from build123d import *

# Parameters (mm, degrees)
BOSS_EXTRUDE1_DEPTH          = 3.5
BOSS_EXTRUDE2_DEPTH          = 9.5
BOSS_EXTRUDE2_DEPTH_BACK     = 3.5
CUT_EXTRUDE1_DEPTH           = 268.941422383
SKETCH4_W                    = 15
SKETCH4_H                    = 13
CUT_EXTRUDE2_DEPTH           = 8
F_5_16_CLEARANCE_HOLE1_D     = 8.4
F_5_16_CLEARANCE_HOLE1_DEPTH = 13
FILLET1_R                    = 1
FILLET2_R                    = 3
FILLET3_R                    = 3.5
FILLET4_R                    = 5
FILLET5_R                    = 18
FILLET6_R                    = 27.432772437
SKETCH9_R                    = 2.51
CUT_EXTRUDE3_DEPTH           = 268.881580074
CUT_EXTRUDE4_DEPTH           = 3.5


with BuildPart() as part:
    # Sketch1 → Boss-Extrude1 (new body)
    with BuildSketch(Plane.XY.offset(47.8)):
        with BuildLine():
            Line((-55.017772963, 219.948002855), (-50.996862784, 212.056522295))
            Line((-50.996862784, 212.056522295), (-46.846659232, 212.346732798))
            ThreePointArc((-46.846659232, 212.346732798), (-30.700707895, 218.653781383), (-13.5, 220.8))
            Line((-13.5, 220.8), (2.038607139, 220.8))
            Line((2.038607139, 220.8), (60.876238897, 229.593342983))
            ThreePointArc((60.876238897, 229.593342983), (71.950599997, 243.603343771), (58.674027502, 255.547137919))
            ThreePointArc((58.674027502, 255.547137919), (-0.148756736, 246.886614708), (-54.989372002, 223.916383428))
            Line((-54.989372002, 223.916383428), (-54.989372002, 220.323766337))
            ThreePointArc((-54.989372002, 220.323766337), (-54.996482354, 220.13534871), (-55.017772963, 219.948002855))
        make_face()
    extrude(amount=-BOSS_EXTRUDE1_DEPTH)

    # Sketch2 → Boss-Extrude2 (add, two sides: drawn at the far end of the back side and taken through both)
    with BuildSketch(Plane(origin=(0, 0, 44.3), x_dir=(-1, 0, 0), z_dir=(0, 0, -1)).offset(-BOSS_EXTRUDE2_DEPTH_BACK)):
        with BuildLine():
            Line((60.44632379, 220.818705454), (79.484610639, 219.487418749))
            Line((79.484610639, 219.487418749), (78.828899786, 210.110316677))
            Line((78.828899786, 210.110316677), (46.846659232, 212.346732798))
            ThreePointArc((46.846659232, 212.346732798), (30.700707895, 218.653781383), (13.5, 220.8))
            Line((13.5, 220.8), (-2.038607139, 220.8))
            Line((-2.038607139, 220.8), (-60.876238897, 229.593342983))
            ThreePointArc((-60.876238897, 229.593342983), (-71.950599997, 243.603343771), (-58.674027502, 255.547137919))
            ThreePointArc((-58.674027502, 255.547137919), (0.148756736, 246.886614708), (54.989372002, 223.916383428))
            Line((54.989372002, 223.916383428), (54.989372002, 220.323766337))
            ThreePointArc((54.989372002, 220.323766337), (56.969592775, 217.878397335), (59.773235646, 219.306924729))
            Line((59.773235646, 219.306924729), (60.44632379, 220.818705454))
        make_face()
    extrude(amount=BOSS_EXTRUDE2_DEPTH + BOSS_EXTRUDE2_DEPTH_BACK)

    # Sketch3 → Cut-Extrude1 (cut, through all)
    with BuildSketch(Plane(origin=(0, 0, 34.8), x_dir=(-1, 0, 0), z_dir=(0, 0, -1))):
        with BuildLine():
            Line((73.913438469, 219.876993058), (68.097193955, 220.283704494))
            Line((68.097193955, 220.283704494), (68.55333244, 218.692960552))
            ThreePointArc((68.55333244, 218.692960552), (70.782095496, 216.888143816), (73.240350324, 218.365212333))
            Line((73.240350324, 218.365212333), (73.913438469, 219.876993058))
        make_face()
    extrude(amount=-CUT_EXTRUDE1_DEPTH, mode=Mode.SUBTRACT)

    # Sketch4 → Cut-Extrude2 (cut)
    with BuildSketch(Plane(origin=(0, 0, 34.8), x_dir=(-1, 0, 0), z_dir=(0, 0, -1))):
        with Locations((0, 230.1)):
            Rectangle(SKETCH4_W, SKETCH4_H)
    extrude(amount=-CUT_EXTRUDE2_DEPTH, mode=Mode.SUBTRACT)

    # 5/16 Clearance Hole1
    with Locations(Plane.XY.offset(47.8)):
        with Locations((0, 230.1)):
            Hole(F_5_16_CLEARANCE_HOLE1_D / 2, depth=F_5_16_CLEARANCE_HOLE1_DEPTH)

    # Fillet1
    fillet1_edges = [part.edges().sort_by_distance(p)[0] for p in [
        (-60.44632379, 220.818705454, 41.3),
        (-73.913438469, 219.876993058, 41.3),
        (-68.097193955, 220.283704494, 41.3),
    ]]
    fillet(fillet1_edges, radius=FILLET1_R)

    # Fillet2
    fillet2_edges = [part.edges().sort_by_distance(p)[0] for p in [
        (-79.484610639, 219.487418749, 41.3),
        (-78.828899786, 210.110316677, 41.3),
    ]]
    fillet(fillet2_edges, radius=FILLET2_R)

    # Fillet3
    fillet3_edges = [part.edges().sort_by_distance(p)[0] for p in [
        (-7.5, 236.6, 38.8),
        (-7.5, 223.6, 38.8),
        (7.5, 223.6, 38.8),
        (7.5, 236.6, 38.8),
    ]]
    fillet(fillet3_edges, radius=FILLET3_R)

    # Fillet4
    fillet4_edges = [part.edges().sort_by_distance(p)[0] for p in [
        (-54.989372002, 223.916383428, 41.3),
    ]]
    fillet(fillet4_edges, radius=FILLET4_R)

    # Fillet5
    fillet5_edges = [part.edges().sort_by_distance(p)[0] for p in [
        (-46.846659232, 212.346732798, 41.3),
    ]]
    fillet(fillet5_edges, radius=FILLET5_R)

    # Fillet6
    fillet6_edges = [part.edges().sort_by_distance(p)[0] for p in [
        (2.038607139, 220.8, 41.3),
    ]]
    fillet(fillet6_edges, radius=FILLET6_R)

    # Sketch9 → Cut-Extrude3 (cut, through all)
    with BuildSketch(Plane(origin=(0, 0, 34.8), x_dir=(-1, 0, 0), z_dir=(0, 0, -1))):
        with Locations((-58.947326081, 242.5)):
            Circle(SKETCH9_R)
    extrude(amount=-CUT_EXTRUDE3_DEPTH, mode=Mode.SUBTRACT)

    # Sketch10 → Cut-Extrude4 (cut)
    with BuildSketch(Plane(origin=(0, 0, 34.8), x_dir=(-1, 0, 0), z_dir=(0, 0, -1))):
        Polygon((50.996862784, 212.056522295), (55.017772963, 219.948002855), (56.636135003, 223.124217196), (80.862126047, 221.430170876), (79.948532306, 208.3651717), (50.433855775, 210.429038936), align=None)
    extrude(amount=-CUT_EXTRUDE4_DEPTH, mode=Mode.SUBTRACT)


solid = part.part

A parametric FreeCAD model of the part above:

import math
import FreeCAD as App
import Part
import Sketcher
from FreeCAD import Vector
Q = App.Units.Quantity


def edges_at(feature, points):
    """Names of the edges that pass closest to the given points."""
    edges = feature.Shape.Edges
    near = lambda p: min(range(len(edges)), key=lambda i: edges[i].distToShape(Part.Vertex(*p))[0])
    return sorted({f"Edge{near(p) + 1}" for p in points})


def add_polygon(sketch, points):
    """Adds a closed chain of lines whose ends are joined by coincident constraints."""
    first, n = sketch.GeometryCount, len(points)
    for a, b in zip(points, points[1:] + points[:1]):
        sketch.addGeometry(Part.LineSegment(App.Vector(*a, 0), App.Vector(*b, 0)), False)
    for i in range(n):
        sketch.addConstraint(Sketcher.Constraint("Coincident", first + i, 2, first + (i + 1) % n, 1))

doc = App.newDocument("Part")
body = doc.addObject("PartDesign::Body", "Body")

# Sketch on XY plane
sketch1 = doc.addObject("Sketcher::SketchObject", "Sketch")
body.addObject(sketch1)
sketch1.AttachmentSupport = (doc.XY_Plane, [""])
sketch1.MapMode = "FlatFace"
sketch1.AttachmentOffset = App.Placement(Vector(0, 0, 47.8), App.Rotation())
sketch1.addGeometry(Part.LineSegment(Vector(-55.017773, 219.948003, 0), Vector(-50.996863, 212.056522, 0)), False)
sketch1.addGeometry(Part.LineSegment(Vector(-50.996863, 212.056522, 0), Vector(-46.846659, 212.346733, 0)), False)
sketch1.addGeometry(Part.ArcOfCircle(Part.Circle(Vector(-13.5, 150.8, 0), Vector(0, 0, 1), 70), math.radians(90), math.radians(118.449295)), False)
sketch1.addGeometry(Part.LineSegment(Vector(-13.5, 220.8, 0), Vector(2.038607, 220.8, 0)), False)
sketch1.addGeometry(Part.LineSegment(Vector(2.038607, 220.8, 0), Vector(60.876239, 229.593343, 0)), False)
sketch1.addGeometry(Part.ArcOfCircle(Part.Circle(Vector(58.947326, 242.5, 0), Vector(0, 0, 1), 13.05), math.radians(-81.5), math.radians(91.2)), False)
sketch1.addGeometry(Part.ArcOfCircle(Part.Circle(Vector(63.658323, 17.599335, 0), Vector(0, 0, 1), 238), math.radians(91.2), math.radians(119.902114)), False)
sketch1.addGeometry(Part.LineSegment(Vector(-54.989372, 223.916383, 0), Vector(-54.989372, 220.323766, 0)), False)
sketch1.addGeometry(Part.ArcOfCircle(Part.Circle(Vector(-57.489372, 220.323766, 0), Vector(0, 0, 1), 2.5), math.radians(-8.644624), math.radians(0)), False)
sketch1.addConstraint(Sketcher.Constraint("Coincident", 0, 2, 1, 1))
sketch1.addConstraint(Sketcher.Constraint("Coincident", 1, 2, 2, 2))
sketch1.addConstraint(Sketcher.Constraint("Tangent", 2, 1, 3, 1))
sketch1.addConstraint(Sketcher.Constraint("Coincident", 3, 2, 4, 1))
sketch1.addConstraint(Sketcher.Constraint("Tangent", 4, 2, 5, 1))
sketch1.addConstraint(Sketcher.Constraint("Tangent", 5, 2, 6, 1))
sketch1.addConstraint(Sketcher.Constraint("Coincident", 6, 2, 7, 1))
sketch1.addConstraint(Sketcher.Constraint("Tangent", 7, 2, 8, 2))
sketch1.addConstraint(Sketcher.Constraint("Coincident", 8, 1, 0, 1))
sketch1.addConstraint(Sketcher.Constraint("Horizontal", 3))
sketch1.addConstraint(Sketcher.Constraint("Vertical", 7))
sketch1.addConstraint(Sketcher.Constraint("Radius", 2, 70.0))
sketch1.addConstraint(Sketcher.Constraint("Radius", 6, 238.0))
sketch1.addConstraint(Sketcher.Constraint("Radius", 8, 2.5))
sketch1.addConstraint(Sketcher.Constraint("Angle", 0, Q("-63 deg")))
sketch1.addConstraint(Sketcher.Constraint("Angle", 1, Q("4 deg")))
sketch1.addConstraint(Sketcher.Constraint("Radius", 5, 13.05))
sketch1.addConstraint(Sketcher.Constraint("Angle", 4, Q("8.5 deg")))
sketch1.addConstraint(Sketcher.Constraint("DistanceX", 2, 3, -1, 1, 13.5))
sketch1.addConstraint(Sketcher.Constraint("DistanceY", -1, 1, 2, 3, 150.8))
sketch1.addConstraint(Sketcher.Constraint("DistanceY", -1, 1, 5, 3, 242.5))
sketch1.addConstraint(Sketcher.Constraint("DistanceX", 8, 3, 5, 3, 116.436698))
sketch1.addConstraint(Sketcher.Constraint("DistanceX", 1, 2, 4, 2, 107.722898))
sketch1.addConstraint(Sketcher.Constraint("DistanceX", 5, 2, 5, 3, 0.273299))
sketch1.addConstraint(Sketcher.Constraint("DistanceX", 8, 1, 7, 2, 0.028401))
sketch1.addConstraint(Sketcher.Constraint("DistanceX", 3, 1, 3, 2, 15.538607))
sketch1.addConstraint(Sketcher.Constraint("DistanceY", 7, 2, 7, 1, 3.592617))
pad1 = doc.addObject("PartDesign::Pad", "Pad")
body.addObject(pad1)
pad1.Profile = sketch1
pad1.Length = 3.5
pad1.Reversed = True

# Sketch on XY plane
sketch2 = doc.addObject("Sketcher::SketchObject", "Sketch001")
body.addObject(sketch2)
sketch2.AttachmentSupport = (doc.XY_Plane, [""])
sketch2.MapMode = "FlatFace"
sketch2.AttachmentOffset = App.Placement(Vector(0, 0, 44.3), App.Rotation())
sketch2.addGeometry(Part.LineSegment(Vector(-79.484611, 219.487419, 0), Vector(-60.446324, 220.818705, 0)), False)
sketch2.addGeometry(Part.LineSegment(Vector(-60.446324, 220.818705, 0), Vector(-59.773236, 219.306925, 0)), False)
sketch2.addGeometry(Part.ArcOfCircle(Part.Circle(Vector(-57.489372, 220.323766, 0), Vector(0, 0, 1), 2.5), math.radians(-156), math.radians(0)), False)
sketch2.addGeometry(Part.LineSegment(Vector(-54.989372, 220.323766, 0), Vector(-54.989372, 223.916383, 0)), False)
sketch2.addGeometry(Part.ArcOfCircle(Part.Circle(Vector(63.658323, 17.599335, 0), Vector(0, 0, 1), 238), math.radians(91.2), math.radians(119.902114)), False)
sketch2.addGeometry(Part.ArcOfCircle(Part.Circle(Vector(58.947326, 242.5, 0), Vector(0, 0, 1), 13.05), math.radians(-81.5), math.radians(91.2)), False)
sketch2.addGeometry(Part.LineSegment(Vector(60.876239, 229.593343, 0), Vector(2.038607, 220.8, 0)), False)
sketch2.addGeometry(Part.LineSegment(Vector(2.038607, 220.8, 0), Vector(-13.5, 220.8, 0)), False)
sketch2.addGeometry(Part.ArcOfCircle(Part.Circle(Vector(-13.5, 150.8, 0), Vector(0, 0, 1), 70), math.radians(90), math.radians(118.449295)), False)
sketch2.addGeometry(Part.LineSegment(Vector(-46.846659, 212.346733, 0), Vector(-78.8289, 210.110317, 0)), False)
sketch2.addGeometry(Part.LineSegment(Vector(-78.8289, 210.110317, 0), Vector(-79.484611, 219.487419, 0)), False)
sketch2.addConstraint(Sketcher.Constraint("Coincident", 0, 2, 1, 1))
sketch2.addConstraint(Sketcher.Constraint("Tangent", 1, 2, 2, 1))
sketch2.addConstraint(Sketcher.Constraint("Tangent", 2, 2, 3, 1))
sketch2.addConstraint(Sketcher.Constraint("Coincident", 3, 2, 4, 2))
sketch2.addConstraint(Sketcher.Constraint("Tangent", 4, 1, 5, 2))
sketch2.addConstraint(Sketcher.Constraint("Tangent", 5, 1, 6, 1))
sketch2.addConstraint(Sketcher.Constraint("Coincident", 6, 2, 7, 1))
sketch2.addConstraint(Sketcher.Constraint("Tangent", 7, 2, 8, 1))
sketch2.addConstraint(Sketcher.Constraint("Coincident", 8, 2, 9, 1))
sketch2.addConstraint(Sketcher.Constraint("Coincident", 9, 2, 10, 1))
sketch2.addConstraint(Sketcher.Constraint("Coincident", 10, 2, 0, 1))
sketch2.addConstraint(Sketcher.Constraint("Vertical", 3))
sketch2.addConstraint(Sketcher.Constraint("Horizontal", 7))
sketch2.addConstraint(Sketcher.Constraint("Parallel", 0, 9))
sketch2.addConstraint(Sketcher.Constraint("Perpendicular", 9, 10))
sketch2.addConstraint(Sketcher.Constraint("Radius", 4, 238.0))
sketch2.addConstraint(Sketcher.Constraint("Radius", 8, 70.0))
sketch2.addConstraint(Sketcher.Constraint("Radius", 2, 2.5))
sketch2.addConstraint(Sketcher.Constraint("Angle", 0, Q("4 deg")))
sketch2.addConstraint(Sketcher.Constraint("Angle", 1, Q("-66 deg")))
sketch2.addConstraint(Sketcher.Constraint("Radius", 5, 13.05))
sketch2.addConstraint(Sketcher.Constraint("Angle", 6, Q("-171.5 deg")))
sketch2.addConstraint(Sketcher.Constraint("Distance", 10, 9.4))
sketch2.addConstraint(Sketcher.Constraint("DistanceY", -1, 1, 5, 3, 242.5))
sketch2.addConstraint(Sketcher.Constraint("DistanceX", 8, 3, -1, 1, 13.5))
sketch2.addConstraint(Sketcher.Constraint("DistanceY", -1, 1, 8, 3, 150.8))
sketch2.addConstraint(Sketcher.Constraint("DistanceX", 9, 2, -1, 1, 78.8289))
sketch2.addConstraint(Sketcher.Constraint("DistanceX", 2, 3, 5, 3, 116.436698))
sketch2.addConstraint(Sketcher.Constraint("Distance", 1, 1.65485))
sketch2.addConstraint(Sketcher.Constraint("DistanceX", 7, 2, 7, 1, 15.538607))
sketch2.addConstraint(Sketcher.Constraint("DistanceY", 3, 1, 3, 2, 3.592617))
sketch2.addConstraint(Sketcher.Constraint("DistanceX", 8, 2, -1, 1, 46.846659))
pad2 = doc.addObject("PartDesign::Pad", "Pad001")
body.addObject(pad2)
pad2.Profile = sketch2
pad2.Type = "TwoLengths"
pad2.Length = 9.5
pad2.Length2 = 3.5
pad2.Reversed = True

# Sketch on XY plane
sketch3 = doc.addObject("Sketcher::SketchObject", "Sketch002")
body.addObject(sketch3)
sketch3.AttachmentSupport = (doc.XY_Plane, [""])
sketch3.MapMode = "FlatFace"
sketch3.AttachmentOffset = App.Placement(Vector(0, 0, 34.8), App.Rotation())
sketch3.addGeometry(Part.LineSegment(Vector(-73.913438, 219.876993, 0), Vector(-68.097194, 220.283704, 0)), False)
sketch3.addGeometry(Part.LineSegment(Vector(-68.097194, 220.283704, 0), Vector(-68.553332, 218.692961, 0)), False)
sketch3.addGeometry(Part.ArcOfCircle(Part.Circle(Vector(-70.956487, 219.382054, 0), Vector(0, 0, 1), 2.5), math.radians(-156), math.radians(-16)), False)
sketch3.addGeometry(Part.LineSegment(Vector(-73.24035, 218.365212, 0), Vector(-73.913438, 219.876993, 0)), False)
sketch3.addConstraint(Sketcher.Constraint("Coincident", 0, 2, 1, 1))
sketch3.addConstraint(Sketcher.Constraint("Tangent", 1, 2, 2, 2))
sketch3.addConstraint(Sketcher.Constraint("Tangent", 2, 1, 3, 1))
sketch3.addConstraint(Sketcher.Constraint("Coincident", 3, 2, 0, 1))
sketch3.addConstraint(Sketcher.Constraint("Equal", 1, 3))
sketch3.addConstraint(Sketcher.Constraint("Radius", 2, 2.5))
sketch3.addConstraint(Sketcher.Constraint("Angle", 0, Q("4 deg")))
sketch3.addConstraint(Sketcher.Constraint("Angle", 1, Q("-106 deg")))
sketch3.addConstraint(Sketcher.Constraint("Distance", 1, 1.65485))
sketch3.addConstraint(Sketcher.Constraint("DistanceY", -1, 1, 1, 2, 218.692961))
sketch3.addConstraint(Sketcher.Constraint("DistanceX", 2, 1, -1, 1, 73.24035))
pocket1 = doc.addObject("PartDesign::Pocket", "Pocket")
body.addObject(pocket1)
pocket1.Profile = sketch3
pocket1.Type = "ThroughAll"
pocket1.Reversed = True

# Sketch on XY plane
sketch4 = doc.addObject("Sketcher::SketchObject", "Sketch003")
body.addObject(sketch4)
sketch4.AttachmentSupport = (doc.XY_Plane, [""])
sketch4.MapMode = "FlatFace"
sketch4.AttachmentOffset = App.Placement(Vector(0, 0, 34.8), App.Rotation())
add_polygon(sketch4, [(7.5, 236.6), (7.5, 223.6), (-7.5, 223.6), (-7.5, 236.6)])  # lines 0-3
sketch4.addConstraint(Sketcher.Constraint("Vertical", 0))
sketch4.addConstraint(Sketcher.Constraint("Horizontal", 1))
sketch4.addConstraint(Sketcher.Constraint("Vertical", 2))
sketch4.addConstraint(Sketcher.Constraint("Horizontal", 3))
sketch4.addConstraint(Sketcher.Constraint("DistanceX", 1, 2, 1, 1, 15.0))
sketch4.addConstraint(Sketcher.Constraint("DistanceY", 0, 2, 0, 1, 13.0))
sketch4.addConstraint(Sketcher.Constraint("DistanceX", -1, 1, 0, 2, 7.5))
sketch4.addConstraint(Sketcher.Constraint("DistanceY", -1, 1, 0, 2, 223.6))
pocket2 = doc.addObject("PartDesign::Pocket", "Pocket001")
body.addObject(pocket2)
pocket2.Profile = sketch4
pocket2.Length = 8
pocket2.Reversed = True

# Sketch on XY plane
sketch5 = doc.addObject("Sketcher::SketchObject", "Sketch004")
body.addObject(sketch5)
sketch5.AttachmentSupport = (doc.XY_Plane, [""])
sketch5.MapMode = "FlatFace"
sketch5.AttachmentOffset = App.Placement(Vector(0, 0, 47.8), App.Rotation())
sketch5.addGeometry(Part.Circle(Vector(0, 230.1, 0), Vector(0, 0, 1), 4.2), False)
sketch5.addConstraint(Sketcher.Constraint("PointOnObject", 0, 3, -2))
sketch5.addConstraint(Sketcher.Constraint("Diameter", 0, 8.4))
sketch5.addConstraint(Sketcher.Constraint("DistanceY", -1, 1, 0, 3, 230.1))
doc.recompute()
hole = doc.addObject("PartDesign::Hole", "Hole")
body.addObject(hole)
hole.Profile = sketch5
hole.ThreadType = "None"
hole.Diameter = 8.4
hole.DepthType = "Dimension"
hole.Depth = 13
hole.DrillPoint = "Flat"
doc.recompute()

fillet = doc.addObject("PartDesign::Fillet", "Fillet")
body.addObject(fillet)
fillet.Base = (hole, edges_at(hole, [(-60.446, 220.819, 41.3), (-73.913, 219.877, 41.3), (-68.097, 220.284, 41.3)]))
fillet.Radius = 1
doc.recompute()

fillet2 = doc.addObject("PartDesign::Fillet", "Fillet001")
body.addObject(fillet2)
fillet2.Base = (fillet, edges_at(fillet, [(-79.485, 219.487, 41.3), (-78.829, 210.11, 41.3)]))
fillet2.Radius = 3
doc.recompute()

fillet3 = doc.addObject("PartDesign::Fillet", "Fillet002")
body.addObject(fillet3)
fillet3.Base = (fillet2, edges_at(fillet2, [
    (-7.5, 236.6, 38.8),
    (-7.5, 223.6, 38.8),
    (7.5, 223.6, 38.8),
    (7.5, 236.6, 38.8),
]))
fillet3.Radius = 3.5
doc.recompute()

fillet4 = doc.addObject("PartDesign::Fillet", "Fillet003")
body.addObject(fillet4)
fillet4.Base = (fillet3, edges_at(fillet3, [(-54.989, 223.916, 41.3)]))
fillet4.Radius = 5
doc.recompute()

fillet5 = doc.addObject("PartDesign::Fillet", "Fillet004")
body.addObject(fillet5)
fillet5.Base = (fillet4, edges_at(fillet4, [(-46.847, 212.347, 39.55)]))
fillet5.Radius = 18
doc.recompute()

fillet6 = doc.addObject("PartDesign::Fillet", "Fillet005")
body.addObject(fillet6)
fillet6.Base = (fillet5, edges_at(fillet5, [(2.039, 220.8, 41.3)]))
fillet6.Radius = 27.432772

# Sketch on XY plane
sketch6 = doc.addObject("Sketcher::SketchObject", "Sketch005")
body.addObject(sketch6)
sketch6.AttachmentSupport = (doc.XY_Plane, [""])
sketch6.MapMode = "FlatFace"
sketch6.AttachmentOffset = App.Placement(Vector(0, 0, 34.8), App.Rotation())
sketch6.addGeometry(Part.Circle(Vector(58.947326, 242.5, 0), Vector(0, 0, 1), 2.51), False)
sketch6.addConstraint(Sketcher.Constraint("Diameter", 0, 5.02))
sketch6.addConstraint(Sketcher.Constraint("DistanceY", -1, 1, 0, 3, 242.5))
sketch6.addConstraint(Sketcher.Constraint("DistanceX", -1, 1, 0, 3, 58.947326))
pocket3 = doc.addObject("PartDesign::Pocket", "Pocket002")
body.addObject(pocket3)
pocket3.Profile = sketch6
pocket3.Type = "ThroughAll"
pocket3.Reversed = True

# Sketch on XY plane
sketch7 = doc.addObject("Sketcher::SketchObject", "Sketch006")
body.addObject(sketch7)
sketch7.AttachmentSupport = (doc.XY_Plane, [""])
sketch7.MapMode = "FlatFace"
sketch7.AttachmentOffset = App.Placement(Vector(0, 0, 34.8), App.Rotation())
add_polygon(sketch7, [(-55.017773, 219.948003), (-50.996863, 212.056522), (-50.433856, 210.429039), (-79.948532, 208.365172), (-80.862126, 221.430171), (-56.636135, 223.124217)])  # lines 0-5
sketch7.addConstraint(Sketcher.Constraint("Perpendicular", 2, 3))
sketch7.addConstraint(Sketcher.Constraint("Perpendicular", 3, 4))
sketch7.addConstraint(Sketcher.Constraint("Parallel", 0, 5))
sketch7.addConstraint(Sketcher.Constraint("Angle", 0, Q("-63 deg")))
sketch7.addConstraint(Sketcher.Constraint("Angle", 2, Q("-176 deg")))
sketch7.addConstraint(Sketcher.Constraint("DistanceY", 2, 2, 3, 2, 13.064999))
sketch7.addConstraint(Sketcher.Constraint("Distance", 2, 29.586748))
sketch7.addConstraint(Sketcher.Constraint("Distance", 4, 24.285148))
sketch7.addConstraint(Sketcher.Constraint("Distance", 5, 3.564749))
sketch7.addConstraint(Sketcher.Constraint("DistanceY", -1, 1, 1, 2, 210.429039))
sketch7.addConstraint(Sketcher.Constraint("DistanceX", 2, 2, 0, 2, 28.95167))
sketch7.addConstraint(Sketcher.Constraint("DistanceX", 0, 2, -1, 1, 50.996863))
pocket4 = doc.addObject("PartDesign::Pocket", "Pocket003")
body.addObject(pocket4)
pocket4.Profile = sketch7
pocket4.Length = 3.5
pocket4.Reversed = True

doc.recompute()
